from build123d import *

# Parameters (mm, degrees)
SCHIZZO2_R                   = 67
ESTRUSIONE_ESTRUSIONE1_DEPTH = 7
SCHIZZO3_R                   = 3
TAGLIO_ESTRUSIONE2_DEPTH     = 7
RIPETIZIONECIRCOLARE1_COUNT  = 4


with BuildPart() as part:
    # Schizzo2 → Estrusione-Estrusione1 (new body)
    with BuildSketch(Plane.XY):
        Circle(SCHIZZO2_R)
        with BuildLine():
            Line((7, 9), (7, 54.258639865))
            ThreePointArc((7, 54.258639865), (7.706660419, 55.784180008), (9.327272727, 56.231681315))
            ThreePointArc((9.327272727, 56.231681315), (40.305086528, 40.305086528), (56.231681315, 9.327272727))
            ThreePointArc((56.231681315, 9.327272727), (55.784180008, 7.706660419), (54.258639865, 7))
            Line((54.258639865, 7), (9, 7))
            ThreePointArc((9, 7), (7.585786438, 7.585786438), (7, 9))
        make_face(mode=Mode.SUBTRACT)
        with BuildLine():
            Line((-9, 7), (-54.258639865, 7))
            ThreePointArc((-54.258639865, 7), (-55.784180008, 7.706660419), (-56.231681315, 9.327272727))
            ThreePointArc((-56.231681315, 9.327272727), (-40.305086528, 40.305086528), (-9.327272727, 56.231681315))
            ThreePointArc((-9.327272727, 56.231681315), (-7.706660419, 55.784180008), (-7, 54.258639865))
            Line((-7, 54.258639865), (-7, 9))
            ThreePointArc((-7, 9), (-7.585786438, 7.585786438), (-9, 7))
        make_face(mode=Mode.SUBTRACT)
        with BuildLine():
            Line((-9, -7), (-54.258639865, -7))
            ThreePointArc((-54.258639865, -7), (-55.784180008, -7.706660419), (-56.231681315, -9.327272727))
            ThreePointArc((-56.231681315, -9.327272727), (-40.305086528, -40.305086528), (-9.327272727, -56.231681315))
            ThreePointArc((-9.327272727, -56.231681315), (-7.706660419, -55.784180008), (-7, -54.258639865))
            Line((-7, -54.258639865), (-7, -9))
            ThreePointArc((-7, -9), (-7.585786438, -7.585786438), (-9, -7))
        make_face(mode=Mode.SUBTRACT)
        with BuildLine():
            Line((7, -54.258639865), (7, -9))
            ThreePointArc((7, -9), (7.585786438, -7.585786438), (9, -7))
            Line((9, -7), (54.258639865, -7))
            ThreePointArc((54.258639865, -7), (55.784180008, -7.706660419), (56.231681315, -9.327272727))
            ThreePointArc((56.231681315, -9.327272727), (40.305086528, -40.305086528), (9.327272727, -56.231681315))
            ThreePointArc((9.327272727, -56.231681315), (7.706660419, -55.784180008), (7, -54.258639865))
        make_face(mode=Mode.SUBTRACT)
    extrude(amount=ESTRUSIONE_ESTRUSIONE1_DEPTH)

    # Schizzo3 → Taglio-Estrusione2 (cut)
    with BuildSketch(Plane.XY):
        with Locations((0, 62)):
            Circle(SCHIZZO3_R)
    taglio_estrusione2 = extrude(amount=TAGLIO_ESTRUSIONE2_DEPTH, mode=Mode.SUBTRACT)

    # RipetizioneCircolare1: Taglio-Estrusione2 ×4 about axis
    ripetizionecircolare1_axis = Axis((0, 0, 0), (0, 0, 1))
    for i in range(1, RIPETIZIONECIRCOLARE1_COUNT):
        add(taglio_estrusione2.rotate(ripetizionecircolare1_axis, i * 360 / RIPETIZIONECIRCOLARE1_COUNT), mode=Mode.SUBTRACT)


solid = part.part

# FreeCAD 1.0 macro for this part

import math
import FreeCAD as App
import Part
import Sketcher

V = App.Vector
Q = App.Units.Quantity

doc = App.newDocument("Part")
body = doc.addObject("PartDesign::Body", "Body")

# Sketch on XY plane
sketch1 = body.newObject("Sketcher::SketchObject", "Sketch")
sketch1.AttachmentSupport = (doc.getObject("XY_Plane"), [""])
sketch1.MapMode = "FlatFace"
sketch1.addGeometry([
    Part.Circle(V(0, 0, 0), V(0, 0, 1), 67),  # 0
    Part.LineSegment(V(-54.25864, -7, 0), V(-9, -7, 0)),  # 1
    Part.ArcOfCircle(Part.Circle(V(-9, -9, 0), V(0, 0, 1), 2), math.radians(0), math.radians(90)),  # 2
    Part.LineSegment(V(-7, -9, 0), V(-7, -54.25864, 0)),  # 3
    Part.ArcOfCircle(Part.Circle(V(-9, -54.25864, 0), V(0, 0, 1), 2), math.radians(-99.418027), math.radians(0)),  # 4
    Part.ArcOfCircle(Part.Circle(V(0, 0, 0), V(0, 0, 1), 57), math.radians(-170.581973), math.radians(-99.418027)),  # 5
    Part.ArcOfCircle(Part.Circle(V(-54.25864, -9, 0), V(0, 0, 1), 2), math.radians(90), math.radians(189.418027)),  # 6
    Part.ArcOfCircle(Part.Circle(V(9, -54.25864, 0), V(0, 0, 1), 2), math.radians(180), math.radians(279.418027)),  # 7
    Part.LineSegment(V(7, -54.25864, 0), V(7, -9, 0)),  # 8
    Part.ArcOfCircle(Part.Circle(V(9, -9, 0), V(0, 0, 1), 2), math.radians(90), math.radians(180)),  # 9
    Part.LineSegment(V(9, -7, 0), V(54.25864, -7, 0)),  # 10
    Part.ArcOfCircle(Part.Circle(V(54.25864, -9, 0), V(0, 0, 1), 2), math.radians(-9.418027), math.radians(90)),  # 11
    Part.ArcOfCircle(Part.Circle(V(0, 0, 0), V(0, 0, 1), 57), math.radians(-80.581973), math.radians(-9.418027)),  # 12
    Part.ArcOfCircle(Part.Circle(V(-9, 9, 0), V(0, 0, 1), 2), math.radians(-90), math.radians(0)),  # 13
    Part.LineSegment(V(-9, 7, 0), V(-54.25864, 7, 0)),  # 14
    Part.ArcOfCircle(Part.Circle(V(-54.25864, 9, 0), V(0, 0, 1), 2), math.radians(170.581973), math.radians(270)),  # 15
    Part.ArcOfCircle(Part.Circle(V(0, 0, 0), V(0, 0, 1), 57), math.radians(99.418027), math.radians(170.581973)),  # 16
    Part.ArcOfCircle(Part.Circle(V(-9, 54.25864, 0), V(0, 0, 1), 2), math.radians(0), math.radians(99.418027)),  # 17
    Part.LineSegment(V(-7, 54.25864, 0), V(-7, 9, 0)),  # 18
    Part.ArcOfCircle(Part.Circle(V(9, 9, 0), V(0, 0, 1), 2), math.radians(-180), math.radians(-90)),  # 19
    Part.LineSegment(V(7, 9, 0), V(7, 54.25864, 0)),  # 20
    Part.ArcOfCircle(Part.Circle(V(9, 54.25864, 0), V(0, 0, 1), 2), math.radians(80.581973), math.radians(180)),  # 21
    Part.ArcOfCircle(Part.Circle(V(0, 0, 0), V(0, 0, 1), 57), math.radians(9.418027), math.radians(80.581973)),  # 22
    Part.ArcOfCircle(Part.Circle(V(54.25864, 9, 0), V(0, 0, 1), 2), math.radians(-90), math.radians(9.418027)),  # 23
    Part.LineSegment(V(54.25864, 7, 0), V(9, 7, 0)),  # 24
], False)
sketch1.addConstraint([
    Sketcher.Constraint("Tangent", 1, 2, 2, 2),
    Sketcher.Constraint("Tangent", 2, 1, 3, 1),
    Sketcher.Constraint("Tangent", 3, 2, 4, 2),
    Sketcher.Constraint("Tangent", 4, 1, 5, 2),
    Sketcher.Constraint("Tangent", 5, 1, 6, 2),
    Sketcher.Constraint("Tangent", 6, 1, 1, 1),
    Sketcher.Constraint("Tangent", 7, 1, 8, 1),
    Sketcher.Constraint("Tangent", 8, 2, 9, 2),
    Sketcher.Constraint("Tangent", 9, 1, 10, 1),
    Sketcher.Constraint("Tangent", 10, 2, 11, 2),
    Sketcher.Constraint("Tangent", 11, 1, 12, 2),
    Sketcher.Constraint("Tangent", 12, 1, 7, 2),
    Sketcher.Constraint("Tangent", 13, 1, 14, 1),
    Sketcher.Constraint("Tangent", 14, 2, 15, 2),
    Sketcher.Constraint("Tangent", 15, 1, 16, 2),
    Sketcher.Constraint("Tangent", 16, 1, 17, 2),
    Sketcher.Constraint("Tangent", 17, 1, 18, 1),
    Sketcher.Constraint("Tangent", 18, 2, 13, 2),
    Sketcher.Constraint("Tangent", 19, 1, 20, 1),
    Sketcher.Constraint("Tangent", 20, 2, 21, 2),
    Sketcher.Constraint("Tangent", 21, 1, 22, 2),
    Sketcher.Constraint("Tangent", 22, 1, 23, 2),
    Sketcher.Constraint("Tangent", 23, 1, 24, 1),
    Sketcher.Constraint("Tangent", 24, 2, 19, 2),
    Sketcher.Constraint("Horizontal", 1),
    Sketcher.Constraint("Vertical", 3),
    Sketcher.Constraint("Vertical", 8),
    Sketcher.Constraint("Horizontal", 10),
    Sketcher.Constraint("Horizontal", 14),
    Sketcher.Constraint("Vertical", 18),
    Sketcher.Constraint("Vertical", 20),
    Sketcher.Constraint("Horizontal", 24),
    Sketcher.Constraint("Coincident", 0, 3, -1, 1),
    Sketcher.Constraint("Coincident", 5, 3, -1, 1),
    Sketcher.Constraint("Coincident", 12, 3, -1, 1),
    Sketcher.Constraint("Coincident", 16, 3, -1, 1),
    Sketcher.Constraint("Coincident", 22, 3, -1, 1),
    Sketcher.Constraint("Equal", 2, 4),
    Sketcher.Constraint("Equal", 4, 6),
    Sketcher.Constraint("Equal", 6, 7),
    Sketcher.Constraint("Equal", 7, 9),
    Sketcher.Constraint("Equal", 9, 11),
    Sketcher.Constraint("Equal", 5, 12),
    Sketcher.Constraint("Equal", 11, 13),
    Sketcher.Constraint("Equal", 13, 15),
    Sketcher.Constraint("Equal", 12, 16),
    Sketcher.Constraint("Equal", 15, 17),
    Sketcher.Constraint("Equal", 17, 19),
    Sketcher.Constraint("Equal", 19, 21),
    Sketcher.Constraint("Equal", 16, 22),
    Sketcher.Constraint("Equal", 21, 23),
    Sketcher.Constraint("Symmetric", 9, 3, 13, 3, -1, 1),
    Sketcher.Constraint("Symmetric", 2, 3, 19, 3, -1, 1),
    Sketcher.Constraint("Symmetric", 2, 3, 9, 3, -2),
    Sketcher.Constraint("Equal", 24, 3),
    Sketcher.Constraint("Diameter", 0, Q("134 mm")),
    Sketcher.Constraint("Radius", 2, Q("2 mm")),
    Sketcher.Constraint("Radius", 5, Q("57 mm")),
    Sketcher.Constraint("DistanceX", 2, 3, -1, 1, Q("9 mm")),
])
pad1 = body.newObject("PartDesign::Pad", "Pad")
pad1.Profile = sketch1
pad1.Length = 7

# Sketch on XY plane
sketch2 = body.newObject("Sketcher::SketchObject", "Sketch001")
sketch2.AttachmentSupport = (doc.getObject("XY_Plane"), [""])
sketch2.MapMode = "FlatFace"
sketch2.addGeometry(Part.Circle(V(0, 62, 0), V(0, 0, 1), 3), False)
sketch2.addConstraint([
    Sketcher.Constraint("PointOnObject", 0, 3, -2),
    Sketcher.Constraint("Diameter", 0, Q("6 mm")),
    Sketcher.Constraint("DistanceY", -1, 1, 0, 3, Q("62 mm")),
])
pocket1 = body.newObject("PartDesign::Pocket", "Pocket")
pocket1.Profile = sketch2
pocket1.Length = 7
pocket1.Reversed = True
doc.recompute()

polarpattern = body.newObject("PartDesign::PolarPattern", "PolarPattern")
polarpattern.Originals = [pocket1]
polarpattern.Axis = (doc.getObject("Z_Axis"), [""])
polarpattern.Angle = 360
polarpattern.Occurrences = 4
body.Tip = polarpattern

doc.recompute()
